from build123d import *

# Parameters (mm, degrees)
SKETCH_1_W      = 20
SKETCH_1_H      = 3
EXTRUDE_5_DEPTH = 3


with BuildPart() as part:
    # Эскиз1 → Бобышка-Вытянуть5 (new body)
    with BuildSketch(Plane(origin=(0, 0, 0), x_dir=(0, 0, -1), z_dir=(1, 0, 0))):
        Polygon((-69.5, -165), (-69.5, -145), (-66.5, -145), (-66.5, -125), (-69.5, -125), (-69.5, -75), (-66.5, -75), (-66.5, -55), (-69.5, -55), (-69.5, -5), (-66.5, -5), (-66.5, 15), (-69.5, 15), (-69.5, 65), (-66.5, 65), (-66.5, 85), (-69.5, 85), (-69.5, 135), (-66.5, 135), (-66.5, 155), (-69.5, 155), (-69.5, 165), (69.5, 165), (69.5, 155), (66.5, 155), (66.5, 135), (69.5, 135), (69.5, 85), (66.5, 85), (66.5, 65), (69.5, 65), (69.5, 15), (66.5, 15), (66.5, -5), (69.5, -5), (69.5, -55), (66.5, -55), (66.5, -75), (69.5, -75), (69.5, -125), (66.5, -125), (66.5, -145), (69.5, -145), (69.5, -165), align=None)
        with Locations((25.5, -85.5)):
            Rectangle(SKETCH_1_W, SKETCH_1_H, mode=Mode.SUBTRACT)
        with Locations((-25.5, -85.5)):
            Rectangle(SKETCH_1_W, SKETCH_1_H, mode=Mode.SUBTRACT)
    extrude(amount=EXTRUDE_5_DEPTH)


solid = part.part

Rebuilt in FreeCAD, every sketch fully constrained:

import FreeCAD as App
import Part
import Sketcher
from FreeCAD import Vector
Q = App.Units.Quantity

doc = App.newDocument("Part")
body = doc.addObject("PartDesign::Body", "Body")

# Sketch on YZ plane
sketch1 = body.newObject("Sketcher::SketchObject", "Sketch")
sketch1.AttachmentSupport = (doc.getObject("YZ_Plane"), [""])
sketch1.MapMode = "FlatFace"
sketch1.addGeometry([
    Part.LineSegment(Vector(-145, 69.5, 0), Vector(-165, 69.5, 0)),  # 0
    Part.LineSegment(Vector(-165, 69.5, 0), Vector(-165, -69.5, 0)),  # 1
    Part.LineSegment(Vector(-165, -69.5, 0), Vector(-145, -69.5, 0)),  # 2
    Part.LineSegment(Vector(-145, -69.5, 0), Vector(-145, -66.5, 0)),  # 3
    Part.LineSegment(Vector(-145, -66.5, 0), Vector(-125, -66.5, 0)),  # 4
    Part.LineSegment(Vector(-125, -66.5, 0), Vector(-125, -69.5, 0)),  # 5
    Part.LineSegment(Vector(-125, -69.5, 0), Vector(-75, -69.5, 0)),  # 6
    Part.LineSegment(Vector(-75, -69.5, 0), Vector(-75, -66.5, 0)),  # 7
    Part.LineSegment(Vector(-75, -66.5, 0), Vector(-55, -66.5, 0)),  # 8
    Part.LineSegment(Vector(-55, -66.5, 0), Vector(-55, -69.5, 0)),  # 9
    Part.LineSegment(Vector(-55, -69.5, 0), Vector(-5, -69.5, 0)),  # 10
    Part.LineSegment(Vector(-5, -69.5, 0), Vector(-5, -66.5, 0)),  # 11
    Part.LineSegment(Vector(-5, -66.5, 0), Vector(15, -66.5, 0)),  # 12
    Part.LineSegment(Vector(15, -66.5, 0), Vector(15, -69.5, 0)),  # 13
    Part.LineSegment(Vector(15, -69.5, 0), Vector(65, -69.5, 0)),  # 14
    Part.LineSegment(Vector(65, -69.5, 0), Vector(65, -66.5, 0)),  # 15
    Part.LineSegment(Vector(65, -66.5, 0), Vector(85, -66.5, 0)),  # 16
    Part.LineSegment(Vector(85, -66.5, 0), Vector(85, -69.5, 0)),  # 17
    Part.LineSegment(Vector(85, -69.5, 0), Vector(135, -69.5, 0)),  # 18
    Part.LineSegment(Vector(135, -69.5, 0), Vector(135, -66.5, 0)),  # 19
    Part.LineSegment(Vector(135, -66.5, 0), Vector(155, -66.5, 0)),  # 20
    Part.LineSegment(Vector(155, -66.5, 0), Vector(155, -69.5, 0)),  # 21
    Part.LineSegment(Vector(155, -69.5, 0), Vector(165, -69.5, 0)),  # 22
    Part.LineSegment(Vector(165, -69.5, 0), Vector(165, 69.5, 0)),  # 23
    Part.LineSegment(Vector(165, 69.5, 0), Vector(155, 69.5, 0)),  # 24
    Part.LineSegment(Vector(155, 69.5, 0), Vector(155, 66.5, 0)),  # 25
    Part.LineSegment(Vector(155, 66.5, 0), Vector(135, 66.5, 0)),  # 26
    Part.LineSegment(Vector(135, 66.5, 0), Vector(135, 69.5, 0)),  # 27
    Part.LineSegment(Vector(135, 69.5, 0), Vector(85, 69.5, 0)),  # 28
    Part.LineSegment(Vector(85, 69.5, 0), Vector(85, 66.5, 0)),  # 29
    Part.LineSegment(Vector(85, 66.5, 0), Vector(65, 66.5, 0)),  # 30
    Part.LineSegment(Vector(65, 66.5, 0), Vector(65, 69.5, 0)),  # 31
    Part.LineSegment(Vector(65, 69.5, 0), Vector(15, 69.5, 0)),  # 32
    Part.LineSegment(Vector(15, 69.5, 0), Vector(15, 66.5, 0)),  # 33
    Part.LineSegment(Vector(15, 66.5, 0), Vector(-5, 66.5, 0)),  # 34
    Part.LineSegment(Vector(-5, 66.5, 0), Vector(-5, 69.5, 0)),  # 35
    Part.LineSegment(Vector(-5, 69.5, 0), Vector(-55, 69.5, 0)),  # 36
    Part.LineSegment(Vector(-55, 69.5, 0), Vector(-55, 66.5, 0)),  # 37
    Part.LineSegment(Vector(-55, 66.5, 0), Vector(-75, 66.5, 0)),  # 38
    Part.LineSegment(Vector(-75, 66.5, 0), Vector(-75, 69.5, 0)),  # 39
    Part.LineSegment(Vector(-75, 69.5, 0), Vector(-125, 69.5, 0)),  # 40
    Part.LineSegment(Vector(-125, 69.5, 0), Vector(-125, 66.5, 0)),  # 41
    Part.LineSegment(Vector(-125, 66.5, 0), Vector(-145, 66.5, 0)),  # 42
    Part.LineSegment(Vector(-145, 66.5, 0), Vector(-145, 69.5, 0)),  # 43
    Part.LineSegment(Vector(-87, -15.5, 0), Vector(-84, -15.5, 0)),  # 44
    Part.LineSegment(Vector(-84, -15.5, 0), Vector(-84, -35.5, 0)),  # 45
    Part.LineSegment(Vector(-84, -35.5, 0), Vector(-87, -35.5, 0)),  # 46
    Part.LineSegment(Vector(-87, -35.5, 0), Vector(-87, -15.5, 0)),  # 47
    Part.LineSegment(Vector(-87, 35.5, 0), Vector(-84, 35.5, 0)),  # 48
    Part.LineSegment(Vector(-84, 35.5, 0), Vector(-84, 15.5, 0)),  # 49
    Part.LineSegment(Vector(-84, 15.5, 0), Vector(-87, 15.5, 0)),  # 50
    Part.LineSegment(Vector(-87, 15.5, 0), Vector(-87, 35.5, 0)),  # 51
], False)
sketch1.addConstraint([
    Sketcher.Constraint("Coincident", 0, 2, 1, 1),
    Sketcher.Constraint("Coincident", 1, 2, 2, 1),
    Sketcher.Constraint("Coincident", 2, 2, 3, 1),
    Sketcher.Constraint("Coincident", 3, 2, 4, 1),
    Sketcher.Constraint("Coincident", 4, 2, 5, 1),
    Sketcher.Constraint("Coincident", 5, 2, 6, 1),
    Sketcher.Constraint("Coincident", 6, 2, 7, 1),
    Sketcher.Constraint("Coincident", 7, 2, 8, 1),
    Sketcher.Constraint("Coincident", 8, 2, 9, 1),
    Sketcher.Constraint("Coincident", 9, 2, 10, 1),
    Sketcher.Constraint("Coincident", 10, 2, 11, 1),
    Sketcher.Constraint("Coincident", 11, 2, 12, 1),
    Sketcher.Constraint("Coincident", 12, 2, 13, 1),
    Sketcher.Constraint("Coincident", 13, 2, 14, 1),
    Sketcher.Constraint("Coincident", 14, 2, 15, 1),
    Sketcher.Constraint("Coincident", 15, 2, 16, 1),
    Sketcher.Constraint("Coincident", 16, 2, 17, 1),
    Sketcher.Constraint("Coincident", 17, 2, 18, 1),
    Sketcher.Constraint("Coincident", 18, 2, 19, 1),
    Sketcher.Constraint("Coincident", 19, 2, 20, 1),
    Sketcher.Constraint("Coincident", 20, 2, 21, 1),
    Sketcher.Constraint("Coincident", 21, 2, 22, 1),
    Sketcher.Constraint("Coincident", 22, 2, 23, 1),
    Sketcher.Constraint("Coincident", 23, 2, 24, 1),
    Sketcher.Constraint("Coincident", 24, 2, 25, 1),
    Sketcher.Constraint("Coincident", 25, 2, 26, 1),
    Sketcher.Constraint("Coincident", 26, 2, 27, 1),
    Sketcher.Constraint("Coincident", 27, 2, 28, 1),
    Sketcher.Constraint("Coincident", 28, 2, 29, 1),
    Sketcher.Constraint("Coincident", 29, 2, 30, 1),
    Sketcher.Constraint("Coincident", 30, 2, 31, 1),
    Sketcher.Constraint("Coincident", 31, 2, 32, 1),
    Sketcher.Constraint("Coincident", 32, 2, 33, 1),
    Sketcher.Constraint("Coincident", 33, 2, 34, 1),
    Sketcher.Constraint("Coincident", 34, 2, 35, 1),
    Sketcher.Constraint("Coincident", 35, 2, 36, 1),
    Sketcher.Constraint("Coincident", 36, 2, 37, 1),
    Sketcher.Constraint("Coincident", 37, 2, 38, 1),
    Sketcher.Constraint("Coincident", 38, 2, 39, 1),
    Sketcher.Constraint("Coincident", 39, 2, 40, 1),
    Sketcher.Constraint("Coincident", 40, 2, 41, 1),
    Sketcher.Constraint("Coincident", 41, 2, 42, 1),
    Sketcher.Constraint("Coincident", 42, 2, 43, 1),
    Sketcher.Constraint("Coincident", 43, 2, 0, 1),
    Sketcher.Constraint("Coincident", 44, 2, 45, 1),
    Sketcher.Constraint("Coincident", 45, 2, 46, 1),
    Sketcher.Constraint("Coincident", 46, 2, 47, 1),
    Sketcher.Constraint("Coincident", 47, 2, 44, 1),
    Sketcher.Constraint("Coincident", 48, 2, 49, 1),
    Sketcher.Constraint("Coincident", 49, 2, 50, 1),
    Sketcher.Constraint("Coincident", 50, 2, 51, 1),
    Sketcher.Constraint("Coincident", 51, 2, 48, 1),
    Sketcher.Constraint("Horizontal", 0),
    Sketcher.Constraint("Vertical", 1),
    Sketcher.Constraint("Horizontal", 2),
    Sketcher.Constraint("Vertical", 3),
    Sketcher.Constraint("Horizontal", 4),
    Sketcher.Constraint("Vertical", 5),
    Sketcher.Constraint("Horizontal", 6),
    Sketcher.Constraint("Vertical", 7),
    Sketcher.Constraint("Horizontal", 8),
    Sketcher.Constraint("Vertical", 9),
    Sketcher.Constraint("Horizontal", 10),
    Sketcher.Constraint("Vertical", 11),
    Sketcher.Constraint("Horizontal", 12),
    Sketcher.Constraint("Vertical", 13),
    Sketcher.Constraint("Horizontal", 14),
    Sketcher.Constraint("Vertical", 15),
    Sketcher.Constraint("Horizontal", 16),
    Sketcher.Constraint("Vertical", 17),
    Sketcher.Constraint("Horizontal", 18),
    Sketcher.Constraint("Vertical", 19),
    Sketcher.Constraint("Horizontal", 20),
    Sketcher.Constraint("Vertical", 21),
    Sketcher.Constraint("Horizontal", 22),
    Sketcher.Constraint("Vertical", 23),
    Sketcher.Constraint("Horizontal", 24),
    Sketcher.Constraint("Vertical", 25),
    Sketcher.Constraint("Horizontal", 26),
    Sketcher.Constraint("Vertical", 27),
    Sketcher.Constraint("Horizontal", 28),
    Sketcher.Constraint("Vertical", 29),
    Sketcher.Constraint("Horizontal", 30),
    Sketcher.Constraint("Vertical", 31),
    Sketcher.Constraint("Horizontal", 32),
    Sketcher.Constraint("Vertical", 33),
    Sketcher.Constraint("Horizontal", 34),
    Sketcher.Constraint("Vertical", 35),
    Sketcher.Constraint("Horizontal", 36),
    Sketcher.Constraint("Vertical", 37),
    Sketcher.Constraint("Horizontal", 38),
    Sketcher.Constraint("Vertical", 39),
    Sketcher.Constraint("Horizontal", 40),
    Sketcher.Constraint("Vertical", 41),
    Sketcher.Constraint("Horizontal", 42),
    Sketcher.Constraint("Vertical", 43),
    Sketcher.Constraint("Horizontal", 44),
    Sketcher.Constraint("Vertical", 45),
    Sketcher.Constraint("Horizontal", 46),
    Sketcher.Constraint("Vertical", 47),
    Sketcher.Constraint("Horizontal", 48),
    Sketcher.Constraint("Vertical", 49),
    Sketcher.Constraint("Horizontal", 50),
    Sketcher.Constraint("Vertical", 51),
    Sketcher.Constraint("Symmetric", 0, 2, 22, 2, -1, 1),
    Sketcher.Constraint("Symmetric", 21, 2, 24, 2, -1),
    Sketcher.Constraint("Symmetric", 19, 2, 26, 2, -1),
    Sketcher.Constraint("Symmetric", 17, 2, 28, 2, -1),
    Sketcher.Constraint("Symmetric", 15, 2, 30, 2, -1),
    Sketcher.Constraint("Symmetric", 13, 2, 32, 2, -1),
    Sketcher.Constraint("Symmetric", 11, 2, 34, 2, -1),
    Sketcher.Constraint("Symmetric", 9, 2, 36, 2, -1),
    Sketcher.Constraint("Symmetric", 7, 2, 38, 2, -1),
    Sketcher.Constraint("Symmetric", 5, 2, 40, 2, -1),
    Sketcher.Constraint("Symmetric", 3, 2, 42, 2, -1),
    Sketcher.Constraint("Symmetric", 45, 2, 48, 2, -1),
    Sketcher.Constraint("Symmetric", 47, 2, 50, 2, -1),
    Sketcher.Constraint("Horizontal", 2, 2, 5, 2),
    Sketcher.Constraint("Horizontal", 4, 2, 7, 2),
    Sketcher.Constraint("Horizontal", 6, 2, 9, 2),
    Sketcher.Constraint("Horizontal", 8, 2, 11, 2),
    Sketcher.Constraint("Horizontal", 10, 2, 13, 2),
    Sketcher.Constraint("Horizontal", 12, 2, 15, 2),
    Sketcher.Constraint("Horizontal", 14, 2, 17, 2),
    Sketcher.Constraint("Horizontal", 16, 2, 19, 2),
    Sketcher.Constraint("Horizontal", 18, 2, 21, 2),
    Sketcher.Constraint("Equal", 2, 4),
    Sketcher.Constraint("Equal", 4, 8),
    Sketcher.Constraint("Equal", 6, 10),
    Sketcher.Constraint("Equal", 8, 12),
    Sketcher.Constraint("Equal", 10, 14),
    Sketcher.Constraint("Equal", 12, 16),
    Sketcher.Constraint("Equal", 14, 18),
    Sketcher.Constraint("Equal", 16, 20),
    Sketcher.Constraint("Equal", 50, 3),
    Sketcher.Constraint("Equal", 42, 45),
    Sketcher.Constraint("DistanceX", 0, 2, 0, 1, Q("20 mm")),
    Sketcher.Constraint("DistanceX", 6, 1, 6, 2, Q("50 mm")),
    Sketcher.Constraint("DistanceX", 22, 1, 22, 2, Q("10 mm")),
    Sketcher.Constraint("DistanceX", 44, 1, 44, 2, Q("3 mm")),
    Sketcher.Constraint("DistanceY", 1, 2, 1, 1, Q("139 mm")),
    Sketcher.Constraint("DistanceX", 44, 2, -1, 1, Q("84 mm")),
    Sketcher.Constraint("DistanceY", 7, 2, 44, 2, Q("51 mm")),
])
pad1 = body.newObject("PartDesign::Pad", "Pad")
pad1.Profile = sketch1
pad1.Length = 3

doc.recompute()
